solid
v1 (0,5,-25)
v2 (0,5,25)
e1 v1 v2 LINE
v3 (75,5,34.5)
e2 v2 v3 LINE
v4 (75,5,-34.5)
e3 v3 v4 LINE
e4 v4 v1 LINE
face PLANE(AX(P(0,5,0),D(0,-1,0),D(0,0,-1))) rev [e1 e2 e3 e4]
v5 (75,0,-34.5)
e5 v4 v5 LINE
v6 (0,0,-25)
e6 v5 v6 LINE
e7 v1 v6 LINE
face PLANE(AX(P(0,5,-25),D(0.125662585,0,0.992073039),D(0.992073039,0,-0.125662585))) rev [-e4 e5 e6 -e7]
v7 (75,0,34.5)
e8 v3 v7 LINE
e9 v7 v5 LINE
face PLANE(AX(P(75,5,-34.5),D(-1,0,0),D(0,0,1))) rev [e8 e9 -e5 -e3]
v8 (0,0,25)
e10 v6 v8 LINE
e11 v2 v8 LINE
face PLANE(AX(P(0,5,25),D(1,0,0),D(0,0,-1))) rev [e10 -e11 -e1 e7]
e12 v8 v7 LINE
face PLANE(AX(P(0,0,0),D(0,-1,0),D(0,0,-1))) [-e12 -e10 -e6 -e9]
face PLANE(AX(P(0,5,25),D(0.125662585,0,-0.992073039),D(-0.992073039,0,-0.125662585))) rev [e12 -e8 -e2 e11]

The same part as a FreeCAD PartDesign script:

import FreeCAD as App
import Part
import Sketcher
Q = App.Units.Quantity


def add_polygon(sketch, points):
    """Adds a closed chain of lines whose ends are joined by coincident constraints."""
    first, n = sketch.GeometryCount, len(points)
    for a, b in zip(points, points[1:] + points[:1]):
        sketch.addGeometry(Part.LineSegment(App.Vector(*a, 0), App.Vector(*b, 0)), False)
    for i in range(n):
        sketch.addConstraint(Sketcher.Constraint("Coincident", first + i, 2, first + (i + 1) % n, 1))

doc = App.newDocument("Part")
body = doc.addObject("PartDesign::Body", "Body")

# Sketch on XZ plane
sketch1 = body.newObject("Sketcher::SketchObject", "Sketch")
sketch1.AttachmentSupport = (doc.getObject("XZ_Plane"), [""])
sketch1.MapMode = "FlatFace"
add_polygon(sketch1, [(75, -34), (0, -25), (0, 25), (75, 34)])  # lines 0-3
sketch1.addConstraint([
    Sketcher.Constraint("Vertical", 1),
    Sketcher.Constraint("Vertical", 3),
    Sketcher.Constraint("Symmetric", 0, 2, 1, 2, -1, 1),
    Sketcher.Constraint("Equal", 0, 2),
    Sketcher.Constraint("DistanceY", 1, 1, 1, 2, Q("50 mm")),
    Sketcher.Constraint("DistanceY", 3, 2, 3, 1, Q("69 mm")),
    Sketcher.Constraint("DistanceX", -1, 1, 2, 2, Q("75 mm")),
])
pad1 = body.newObject("PartDesign::Pad", "Pad")
pad1.Profile = sketch1
pad1.Length = 5
pad1.Reversed = True

doc.recompute()
